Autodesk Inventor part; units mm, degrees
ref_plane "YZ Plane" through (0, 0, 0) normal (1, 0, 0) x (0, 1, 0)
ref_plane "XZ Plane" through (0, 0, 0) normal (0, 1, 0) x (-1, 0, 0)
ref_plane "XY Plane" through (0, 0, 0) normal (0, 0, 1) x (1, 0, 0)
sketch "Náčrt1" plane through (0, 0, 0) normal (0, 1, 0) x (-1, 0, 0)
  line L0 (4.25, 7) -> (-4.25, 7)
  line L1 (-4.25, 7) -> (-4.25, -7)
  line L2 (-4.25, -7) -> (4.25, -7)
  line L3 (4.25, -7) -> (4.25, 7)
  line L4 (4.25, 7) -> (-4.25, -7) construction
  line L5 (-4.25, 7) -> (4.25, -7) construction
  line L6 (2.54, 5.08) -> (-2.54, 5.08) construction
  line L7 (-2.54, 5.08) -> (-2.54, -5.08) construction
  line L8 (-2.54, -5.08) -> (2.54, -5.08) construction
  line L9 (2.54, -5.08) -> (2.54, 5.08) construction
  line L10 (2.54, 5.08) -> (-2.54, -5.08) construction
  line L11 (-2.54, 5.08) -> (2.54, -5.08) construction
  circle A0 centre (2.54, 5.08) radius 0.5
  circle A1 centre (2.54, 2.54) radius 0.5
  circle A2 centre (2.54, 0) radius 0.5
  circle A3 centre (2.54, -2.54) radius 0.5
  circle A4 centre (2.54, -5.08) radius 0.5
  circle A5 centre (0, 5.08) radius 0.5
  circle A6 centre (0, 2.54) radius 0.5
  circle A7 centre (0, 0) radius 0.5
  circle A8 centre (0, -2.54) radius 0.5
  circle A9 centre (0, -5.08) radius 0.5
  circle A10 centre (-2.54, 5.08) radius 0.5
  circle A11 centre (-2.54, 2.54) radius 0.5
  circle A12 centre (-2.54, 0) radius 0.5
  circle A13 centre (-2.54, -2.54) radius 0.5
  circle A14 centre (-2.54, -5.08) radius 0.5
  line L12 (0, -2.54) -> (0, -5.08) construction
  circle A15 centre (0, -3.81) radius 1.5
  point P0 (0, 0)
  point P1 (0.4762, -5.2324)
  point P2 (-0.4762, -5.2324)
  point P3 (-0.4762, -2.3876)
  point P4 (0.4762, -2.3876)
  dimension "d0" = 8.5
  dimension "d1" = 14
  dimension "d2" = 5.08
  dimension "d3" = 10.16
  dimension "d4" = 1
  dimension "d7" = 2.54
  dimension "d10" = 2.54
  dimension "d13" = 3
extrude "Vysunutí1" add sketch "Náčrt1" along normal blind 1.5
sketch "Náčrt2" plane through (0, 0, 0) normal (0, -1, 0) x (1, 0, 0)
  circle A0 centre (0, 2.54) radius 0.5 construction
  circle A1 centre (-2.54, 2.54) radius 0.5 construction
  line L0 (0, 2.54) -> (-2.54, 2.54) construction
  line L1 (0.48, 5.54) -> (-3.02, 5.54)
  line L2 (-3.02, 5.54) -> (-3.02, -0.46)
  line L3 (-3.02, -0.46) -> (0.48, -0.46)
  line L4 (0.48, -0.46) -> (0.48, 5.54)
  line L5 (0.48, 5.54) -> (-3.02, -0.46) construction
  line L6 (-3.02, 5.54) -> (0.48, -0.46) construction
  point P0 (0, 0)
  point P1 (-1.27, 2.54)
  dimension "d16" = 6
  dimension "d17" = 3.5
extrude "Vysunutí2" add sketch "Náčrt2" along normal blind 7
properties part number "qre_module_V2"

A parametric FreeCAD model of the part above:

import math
import FreeCAD as App
import Part
import Sketcher
Q = App.Units.Quantity


def add_polygon(sketch, points):
    """Adds a closed chain of lines whose ends are joined by coincident constraints."""
    first, n = sketch.GeometryCount, len(points)
    for a, b in zip(points, points[1:] + points[:1]):
        sketch.addGeometry(Part.LineSegment(App.Vector(*a, 0), App.Vector(*b, 0)), False)
    for i in range(n):
        sketch.addConstraint(Sketcher.Constraint("Coincident", first + i, 2, first + (i + 1) % n, 1))

doc = App.newDocument("Part")
params = doc.addObject("Spreadsheet::Sheet", "Params")
for row, (alias, value) in enumerate([
    ("sketch1_diameter", "1 mm"),
    ("sketch1_radius", "1.5 mm"),
    ("sketch1_height", "14 mm"),
    ("sketch1_width", "8.5 mm"),
    ("pad1_length", "1.5 mm"),
    ("sketch2_height", "6 mm"),
    ("sketch2_width", "3.5 mm"),
    ("pad2_length", "7 mm"),
], start=1):
    params.set(f"A{row}", alias)
    params.set(f"B{row}", "=" + value)
    params.setAlias(f"B{row}", alias)

body = doc.addObject("PartDesign::Body", "Body")

sketch1 = doc.addObject("Sketcher::SketchObject", "Sketch")
body.addObject(sketch1)
sketch1.AttachmentSupport = (doc.XZ_Plane, [""])
sketch1.MapMode = "FlatFace"
add_polygon(sketch1, [(-4.2, -7), (-4.2, 7), (4.2, 7), (4.2, -7)])
sketch1.addGeometry(Part.Circle(App.Vector(2.5, -5.1, 0), App.Vector(0, 0, 1), 0.5), False)
sketch1.addGeometry(Part.Circle(App.Vector(2.5, -2.5, 0), App.Vector(0, 0, 1), 0.5), False)
sketch1.addGeometry(Part.ArcOfCircle(Part.Circle(App.Vector(0, -2.5, 0), App.Vector(0, 0, 1), 0.5), math.radians(18), math.radians(162)), False)
sketch1.addGeometry(Part.ArcOfCircle(Part.Circle(App.Vector(0, -3.8, 0), App.Vector(0, 0, 1), 1.5), math.radians(109), math.radians(251)), False)
sketch1.addGeometry(Part.ArcOfCircle(Part.Circle(App.Vector(0, -5.1, 0), App.Vector(0, 0, 1), 0.5), math.radians(-162), math.radians(-18)), False)
sketch1.addGeometry(Part.ArcOfCircle(Part.Circle(App.Vector(0, -3.8, 0), App.Vector(0, 0, 1), 1.5), math.radians(-71), math.radians(71)), False)
sketch1.addGeometry(Part.Circle(App.Vector(-2.5, -5.1, 0), App.Vector(0, 0, 1), 0.5), False)
sketch1.addGeometry(Part.Circle(App.Vector(-2.5, -2.5, 0), App.Vector(0, 0, 1), 0.5), False)
sketch1.addGeometry(Part.Circle(App.Vector(2.5, 0, 0), App.Vector(0, 0, 1), 0.5), False)
sketch1.addGeometry(Part.Circle(App.Vector(2.5, 2.5, 0), App.Vector(0, 0, 1), 0.5), False)
sketch1.addGeometry(Part.Circle(App.Vector(2.5, 5.1, 0), App.Vector(0, 0, 1), 0.5), False)
sketch1.addGeometry(Part.Circle(App.Vector(0, 0, 0), App.Vector(0, 0, 1), 0.5), False)
sketch1.addGeometry(Part.Circle(App.Vector(0, 2.5, 0), App.Vector(0, 0, 1), 0.5), False)
sketch1.addGeometry(Part.Circle(App.Vector(-2.5, 0, 0), App.Vector(0, 0, 1), 0.5), False)
sketch1.addGeometry(Part.Circle(App.Vector(-2.5, 2.5, 0), App.Vector(0, 0, 1), 0.5), False)
sketch1.addGeometry(Part.Circle(App.Vector(0, 5.1, 0), App.Vector(0, 0, 1), 0.5), False)
sketch1.addGeometry(Part.Circle(App.Vector(-2.5, 5.1, 0), App.Vector(0, 0, 1), 0.5), False)
sketch1.addConstraint(Sketcher.Constraint("Coincident", 6, 2, 7, 1))
sketch1.addConstraint(Sketcher.Constraint("Coincident", 7, 2, 8, 1))
sketch1.addConstraint(Sketcher.Constraint("Coincident", 8, 2, 9, 1))
sketch1.addConstraint(Sketcher.Constraint("Coincident", 9, 2, 6, 1))
sketch1.addConstraint(Sketcher.Constraint("Vertical", 0))
sketch1.addConstraint(Sketcher.Constraint("Horizontal", 1))
sketch1.addConstraint(Sketcher.Constraint("Vertical", 2))
sketch1.addConstraint(Sketcher.Constraint("Horizontal", 3))
sketch1.addConstraint(Sketcher.Constraint("Coincident", 15, 3, -1, 1))
sketch1.addConstraint(Sketcher.Constraint("Coincident", 9, 3, 7, 3))
sketch1.addConstraint(Sketcher.Constraint("Equal", 4, 5))
sketch1.addConstraint(Sketcher.Constraint("Equal", 5, 6))
sketch1.addConstraint(Sketcher.Constraint("Equal", 6, 8))
sketch1.addConstraint(Sketcher.Constraint("Equal", 7, 9))
sketch1.addConstraint(Sketcher.Constraint("Equal", 8, 10))
sketch1.addConstraint(Sketcher.Constraint("Equal", 10, 11))
sketch1.addConstraint(Sketcher.Constraint("Equal", 11, 12))
sketch1.addConstraint(Sketcher.Constraint("Equal", 12, 13))
sketch1.addConstraint(Sketcher.Constraint("Equal", 13, 14))
sketch1.addConstraint(Sketcher.Constraint("Equal", 14, 15))
sketch1.addConstraint(Sketcher.Constraint("Equal", 15, 16))
sketch1.addConstraint(Sketcher.Constraint("Equal", 16, 17))
sketch1.addConstraint(Sketcher.Constraint("Equal", 17, 18))
sketch1.addConstraint(Sketcher.Constraint("Equal", 18, 19))
sketch1.addConstraint(Sketcher.Constraint("Equal", 19, 20))
sketch1.addConstraint(Sketcher.Constraint("Symmetric", 11, 3, 13, 3, -1, 1))
sketch1.addConstraint(Sketcher.Constraint("Symmetric", 10, 3, 14, 3, -1, 1))
sketch1.addConstraint(Sketcher.Constraint("Symmetric", 6, 3, 16, 3, -1, 1))
sketch1.addConstraint(Sketcher.Constraint("Symmetric", 12, 3, 17, 3, -1, 1))
sketch1.addConstraint(Sketcher.Constraint("Symmetric", 5, 3, 18, 3, -1, 1))
sketch1.addConstraint(Sketcher.Constraint("Symmetric", 8, 3, 19, 3, -1, 1))
sketch1.addConstraint(Sketcher.Constraint("Symmetric", 4, 3, 20, 3, -1, 1))
sketch1.addConstraint(Sketcher.Constraint("Symmetric", 0, 2, 2, 2, -1, 1))
sketch1.addConstraint(Sketcher.Constraint("Symmetric", 4, 3, 10, 3, -2))
sketch1.addConstraint(Sketcher.Constraint("Symmetric", 5, 3, 11, 3, -2))
sketch1.addConstraint(Sketcher.Constraint("Symmetric", 7, 2, 8, 2, -2))
sketch1.addConstraint(Sketcher.Constraint("PointOnObject", 6, 3, -2))
sketch1.addConstraint(Sketcher.Constraint("PointOnObject", 12, 3, -1))
sketch1.addConstraint(Sketcher.Constraint("Horizontal", 5, 3, 6, 3))
sketch1.addConstraint(Sketcher.Constraint("Horizontal", 4, 3, 8, 3))
sketch1.addConstraint(Sketcher.Constraint("Vertical", 4, 3, 5, 3))
sketch1.addConstraint(Sketcher.Constraint("Vertical", 5, 3, 12, 3))
sketch1.addConstraint(Sketcher.Constraint("Vertical", 6, 2, 7, 2))
sketch1.addConstraint(Sketcher.Constraint("Diameter", 4, Q("1 mm")))
sketch1.addConstraint(Sketcher.Constraint("Radius", 7, Q("1.5 mm")))
sketch1.addConstraint(Sketcher.Constraint("DistanceY", 0, 1, 0, 2, Q("14 mm")))
sketch1.addConstraint(Sketcher.Constraint("DistanceX", 1, 1, 1, 2, Q("8.5 mm")))
sketch1.addConstraint(Sketcher.Constraint("DistanceX", -1, 1, 4, 3, Q("2.54 mm")))
sketch1.addConstraint(Sketcher.Constraint("DistanceY", 4, 3, -1, 1, Q("5.08 mm")))
sketch1.addConstraint(Sketcher.Constraint("DistanceY", 5, 3, -1, 1, Q("2.54 mm")))
sketch1.setExpression("Constraints[47]", "Params.sketch1_diameter")
sketch1.setExpression("Constraints[48]", "Params.sketch1_radius")
sketch1.setExpression("Constraints[49]", "Params.sketch1_height")
sketch1.setExpression("Constraints[50]", "Params.sketch1_width")
pad1 = doc.addObject("PartDesign::Pad", "Pad")
body.addObject(pad1)
pad1.Profile = sketch1
pad1.setExpression("Length", "Params.pad1_length")
pad1.Reversed = True

sketch2 = doc.addObject("Sketcher::SketchObject", "Sketch001")
body.addObject(sketch2)
sketch2.AttachmentSupport = (doc.XZ_Plane, [""])
sketch2.MapMode = "FlatFace"
add_polygon(sketch2, [(0.5, -0.5), (0.5, 5.5), (-3, 5.5), (-3, -0.5)])
sketch2.addConstraint(Sketcher.Constraint("Vertical", 0))
sketch2.addConstraint(Sketcher.Constraint("Horizontal", 1))
sketch2.addConstraint(Sketcher.Constraint("Vertical", 2))
sketch2.addConstraint(Sketcher.Constraint("Horizontal", 3))
sketch2.addConstraint(Sketcher.Constraint("DistanceY", 0, 1, 0, 2, Q("6 mm")))
sketch2.addConstraint(Sketcher.Constraint("DistanceX", 1, 2, 1, 1, Q("3.5 mm")))
sketch2.addConstraint(Sketcher.Constraint("DistanceX", -1, 1, 0, 2, Q("0.48 mm")))
sketch2.addConstraint(Sketcher.Constraint("DistanceY", -1, 1, 0, 2, Q("5.54 mm")))
sketch2.setExpression("Constraints[8]", "Params.sketch2_height")
sketch2.setExpression("Constraints[9]", "Params.sketch2_width")
pad2 = doc.addObject("PartDesign::Pad", "Pad001")
body.addObject(pad2)
pad2.Profile = sketch2
pad2.setExpression("Length", "Params.pad2_length")

doc.recompute()
